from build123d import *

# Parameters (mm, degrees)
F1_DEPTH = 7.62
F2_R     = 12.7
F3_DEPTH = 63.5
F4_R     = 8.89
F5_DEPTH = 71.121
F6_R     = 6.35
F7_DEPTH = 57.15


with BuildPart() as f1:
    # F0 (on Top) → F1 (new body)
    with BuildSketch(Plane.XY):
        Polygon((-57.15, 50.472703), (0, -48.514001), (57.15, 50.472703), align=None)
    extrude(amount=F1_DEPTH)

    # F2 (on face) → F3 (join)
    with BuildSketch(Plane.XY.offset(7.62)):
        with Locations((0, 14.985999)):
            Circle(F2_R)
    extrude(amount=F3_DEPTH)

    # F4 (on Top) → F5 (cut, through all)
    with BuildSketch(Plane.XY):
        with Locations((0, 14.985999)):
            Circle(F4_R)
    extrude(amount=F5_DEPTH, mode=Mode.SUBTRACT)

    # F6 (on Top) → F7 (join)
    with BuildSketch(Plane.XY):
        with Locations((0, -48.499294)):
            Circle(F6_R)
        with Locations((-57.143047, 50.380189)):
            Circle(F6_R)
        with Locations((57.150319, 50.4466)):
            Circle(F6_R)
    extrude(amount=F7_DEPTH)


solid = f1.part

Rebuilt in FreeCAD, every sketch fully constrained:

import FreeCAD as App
import Part
import Sketcher

V = App.Vector
Q = App.Units.Quantity

doc = App.newDocument("Part")
body = doc.addObject("PartDesign::Body", "Body")

sketch1 = body.newObject("Sketcher::SketchObject", "Sketch")
sketch1.AttachmentSupport = (doc.getObject("XY_Plane"), [""])
sketch1.MapMode = "FlatFace"
sketch1.addGeometry([
    Part.LineSegment(V(-57.15, 50.472703, 0), V(0, -48.514001, 0)),
    Part.LineSegment(V(0, -48.514001, 0), V(57.15, 50.472703, 0)),
    Part.LineSegment(V(57.15, 50.472703, 0), V(-57.15, 50.472703, 0)),
], False)
sketch1.addConstraint([
    Sketcher.Constraint("Coincident", 0, 2, 1, 1),
    Sketcher.Constraint("Coincident", 1, 2, 2, 1),
    Sketcher.Constraint("Coincident", 2, 2, 0, 1),
    Sketcher.Constraint("Horizontal", 2),
    Sketcher.Constraint("PointOnObject", 0, 2, -2),
    Sketcher.Constraint("Equal", 0, 1),
    Sketcher.Constraint("DistanceX", 2, 2, 2, 1, Q("4.5 in")),
    Sketcher.Constraint("Angle", 0, Q("-60 deg")),
    Sketcher.Constraint("DistanceY", 0, 2, -1, 1, Q("1.91 in")),
])
pad1 = body.newObject("PartDesign::Pad", "Pad")
pad1.Profile = sketch1
pad1.Length = Q("0.3 in")

sketch2 = body.newObject("Sketcher::SketchObject", "Sketch001")
sketch2.AttachmentSupport = (doc.getObject("XY_Plane"), [""])
sketch2.MapMode = "FlatFace"
sketch2.AttachmentOffset = App.Placement(V(0, 0, 0.3 * 25.4), App.Rotation())
sketch2.addGeometry(Part.Circle(V(0, 14.985999, 0), V(0, 0, 1), 12.7), False)
sketch2.addConstraint([
    Sketcher.Constraint("PointOnObject", 0, 3, -2),
    Sketcher.Constraint("Diameter", 0, Q("1 in")),
    Sketcher.Constraint("DistanceY", -1, 1, 0, 3, Q("0.59 in")),
])
pad2 = body.newObject("PartDesign::Pad", "Pad001")
pad2.Profile = sketch2
pad2.Length = Q("2.5 in")

sketch3 = body.newObject("Sketcher::SketchObject", "Sketch002")
sketch3.AttachmentSupport = (doc.getObject("XY_Plane"), [""])
sketch3.MapMode = "FlatFace"
sketch3.addGeometry(Part.Circle(V(0, 14.985999, 0), V(0, 0, 1), 8.89), False)
sketch3.addConstraint([
    Sketcher.Constraint("PointOnObject", 0, 3, -2),
    Sketcher.Constraint("Diameter", 0, Q("0.7 in")),
    Sketcher.Constraint("DistanceY", -1, 1, 0, 3, Q("0.59 in")),
])
pocket1 = body.newObject("PartDesign::Pocket", "Pocket")
pocket1.Profile = sketch3
pocket1.Type = "ThroughAll"
pocket1.Reversed = True

sketch4 = body.newObject("Sketcher::SketchObject", "Sketch003")
sketch4.AttachmentSupport = (doc.getObject("XY_Plane"), [""])
sketch4.MapMode = "FlatFace"
sketch4.addGeometry([
    Part.Circle(V(0, -48.499294, 0), V(0, 0, 1), 6.35),
    Part.Circle(V(-57.143047, 50.380189, 0), V(0, 0, 1), 6.35),
    Part.Circle(V(57.150319, 50.4466, 0), V(0, 0, 1), 6.35),
], False)
sketch4.addConstraint([
    Sketcher.Constraint("Equal", 0, 1),
    Sketcher.Constraint("Equal", 1, 2),
    Sketcher.Constraint("PointOnObject", 0, 3, -2),
    Sketcher.Constraint("Diameter", 0, Q("0.5 in")),
    Sketcher.Constraint("DistanceY", -1, 1, 2, 3, 50.4466),
    Sketcher.Constraint("DistanceY", -1, 1, 1, 3, 50.380189),
    Sketcher.Constraint("DistanceX", -1, 1, 2, 3, 57.150319),
    Sketcher.Constraint("DistanceY", 0, 3, -1, 1, 48.499294),
    Sketcher.Constraint("DistanceX", 1, 3, -1, 1, 57.143047),
])
pad3 = body.newObject("PartDesign::Pad", "Pad002")
pad3.Profile = sketch4
pad3.Length = Q("2.25 in")

doc.recompute()
